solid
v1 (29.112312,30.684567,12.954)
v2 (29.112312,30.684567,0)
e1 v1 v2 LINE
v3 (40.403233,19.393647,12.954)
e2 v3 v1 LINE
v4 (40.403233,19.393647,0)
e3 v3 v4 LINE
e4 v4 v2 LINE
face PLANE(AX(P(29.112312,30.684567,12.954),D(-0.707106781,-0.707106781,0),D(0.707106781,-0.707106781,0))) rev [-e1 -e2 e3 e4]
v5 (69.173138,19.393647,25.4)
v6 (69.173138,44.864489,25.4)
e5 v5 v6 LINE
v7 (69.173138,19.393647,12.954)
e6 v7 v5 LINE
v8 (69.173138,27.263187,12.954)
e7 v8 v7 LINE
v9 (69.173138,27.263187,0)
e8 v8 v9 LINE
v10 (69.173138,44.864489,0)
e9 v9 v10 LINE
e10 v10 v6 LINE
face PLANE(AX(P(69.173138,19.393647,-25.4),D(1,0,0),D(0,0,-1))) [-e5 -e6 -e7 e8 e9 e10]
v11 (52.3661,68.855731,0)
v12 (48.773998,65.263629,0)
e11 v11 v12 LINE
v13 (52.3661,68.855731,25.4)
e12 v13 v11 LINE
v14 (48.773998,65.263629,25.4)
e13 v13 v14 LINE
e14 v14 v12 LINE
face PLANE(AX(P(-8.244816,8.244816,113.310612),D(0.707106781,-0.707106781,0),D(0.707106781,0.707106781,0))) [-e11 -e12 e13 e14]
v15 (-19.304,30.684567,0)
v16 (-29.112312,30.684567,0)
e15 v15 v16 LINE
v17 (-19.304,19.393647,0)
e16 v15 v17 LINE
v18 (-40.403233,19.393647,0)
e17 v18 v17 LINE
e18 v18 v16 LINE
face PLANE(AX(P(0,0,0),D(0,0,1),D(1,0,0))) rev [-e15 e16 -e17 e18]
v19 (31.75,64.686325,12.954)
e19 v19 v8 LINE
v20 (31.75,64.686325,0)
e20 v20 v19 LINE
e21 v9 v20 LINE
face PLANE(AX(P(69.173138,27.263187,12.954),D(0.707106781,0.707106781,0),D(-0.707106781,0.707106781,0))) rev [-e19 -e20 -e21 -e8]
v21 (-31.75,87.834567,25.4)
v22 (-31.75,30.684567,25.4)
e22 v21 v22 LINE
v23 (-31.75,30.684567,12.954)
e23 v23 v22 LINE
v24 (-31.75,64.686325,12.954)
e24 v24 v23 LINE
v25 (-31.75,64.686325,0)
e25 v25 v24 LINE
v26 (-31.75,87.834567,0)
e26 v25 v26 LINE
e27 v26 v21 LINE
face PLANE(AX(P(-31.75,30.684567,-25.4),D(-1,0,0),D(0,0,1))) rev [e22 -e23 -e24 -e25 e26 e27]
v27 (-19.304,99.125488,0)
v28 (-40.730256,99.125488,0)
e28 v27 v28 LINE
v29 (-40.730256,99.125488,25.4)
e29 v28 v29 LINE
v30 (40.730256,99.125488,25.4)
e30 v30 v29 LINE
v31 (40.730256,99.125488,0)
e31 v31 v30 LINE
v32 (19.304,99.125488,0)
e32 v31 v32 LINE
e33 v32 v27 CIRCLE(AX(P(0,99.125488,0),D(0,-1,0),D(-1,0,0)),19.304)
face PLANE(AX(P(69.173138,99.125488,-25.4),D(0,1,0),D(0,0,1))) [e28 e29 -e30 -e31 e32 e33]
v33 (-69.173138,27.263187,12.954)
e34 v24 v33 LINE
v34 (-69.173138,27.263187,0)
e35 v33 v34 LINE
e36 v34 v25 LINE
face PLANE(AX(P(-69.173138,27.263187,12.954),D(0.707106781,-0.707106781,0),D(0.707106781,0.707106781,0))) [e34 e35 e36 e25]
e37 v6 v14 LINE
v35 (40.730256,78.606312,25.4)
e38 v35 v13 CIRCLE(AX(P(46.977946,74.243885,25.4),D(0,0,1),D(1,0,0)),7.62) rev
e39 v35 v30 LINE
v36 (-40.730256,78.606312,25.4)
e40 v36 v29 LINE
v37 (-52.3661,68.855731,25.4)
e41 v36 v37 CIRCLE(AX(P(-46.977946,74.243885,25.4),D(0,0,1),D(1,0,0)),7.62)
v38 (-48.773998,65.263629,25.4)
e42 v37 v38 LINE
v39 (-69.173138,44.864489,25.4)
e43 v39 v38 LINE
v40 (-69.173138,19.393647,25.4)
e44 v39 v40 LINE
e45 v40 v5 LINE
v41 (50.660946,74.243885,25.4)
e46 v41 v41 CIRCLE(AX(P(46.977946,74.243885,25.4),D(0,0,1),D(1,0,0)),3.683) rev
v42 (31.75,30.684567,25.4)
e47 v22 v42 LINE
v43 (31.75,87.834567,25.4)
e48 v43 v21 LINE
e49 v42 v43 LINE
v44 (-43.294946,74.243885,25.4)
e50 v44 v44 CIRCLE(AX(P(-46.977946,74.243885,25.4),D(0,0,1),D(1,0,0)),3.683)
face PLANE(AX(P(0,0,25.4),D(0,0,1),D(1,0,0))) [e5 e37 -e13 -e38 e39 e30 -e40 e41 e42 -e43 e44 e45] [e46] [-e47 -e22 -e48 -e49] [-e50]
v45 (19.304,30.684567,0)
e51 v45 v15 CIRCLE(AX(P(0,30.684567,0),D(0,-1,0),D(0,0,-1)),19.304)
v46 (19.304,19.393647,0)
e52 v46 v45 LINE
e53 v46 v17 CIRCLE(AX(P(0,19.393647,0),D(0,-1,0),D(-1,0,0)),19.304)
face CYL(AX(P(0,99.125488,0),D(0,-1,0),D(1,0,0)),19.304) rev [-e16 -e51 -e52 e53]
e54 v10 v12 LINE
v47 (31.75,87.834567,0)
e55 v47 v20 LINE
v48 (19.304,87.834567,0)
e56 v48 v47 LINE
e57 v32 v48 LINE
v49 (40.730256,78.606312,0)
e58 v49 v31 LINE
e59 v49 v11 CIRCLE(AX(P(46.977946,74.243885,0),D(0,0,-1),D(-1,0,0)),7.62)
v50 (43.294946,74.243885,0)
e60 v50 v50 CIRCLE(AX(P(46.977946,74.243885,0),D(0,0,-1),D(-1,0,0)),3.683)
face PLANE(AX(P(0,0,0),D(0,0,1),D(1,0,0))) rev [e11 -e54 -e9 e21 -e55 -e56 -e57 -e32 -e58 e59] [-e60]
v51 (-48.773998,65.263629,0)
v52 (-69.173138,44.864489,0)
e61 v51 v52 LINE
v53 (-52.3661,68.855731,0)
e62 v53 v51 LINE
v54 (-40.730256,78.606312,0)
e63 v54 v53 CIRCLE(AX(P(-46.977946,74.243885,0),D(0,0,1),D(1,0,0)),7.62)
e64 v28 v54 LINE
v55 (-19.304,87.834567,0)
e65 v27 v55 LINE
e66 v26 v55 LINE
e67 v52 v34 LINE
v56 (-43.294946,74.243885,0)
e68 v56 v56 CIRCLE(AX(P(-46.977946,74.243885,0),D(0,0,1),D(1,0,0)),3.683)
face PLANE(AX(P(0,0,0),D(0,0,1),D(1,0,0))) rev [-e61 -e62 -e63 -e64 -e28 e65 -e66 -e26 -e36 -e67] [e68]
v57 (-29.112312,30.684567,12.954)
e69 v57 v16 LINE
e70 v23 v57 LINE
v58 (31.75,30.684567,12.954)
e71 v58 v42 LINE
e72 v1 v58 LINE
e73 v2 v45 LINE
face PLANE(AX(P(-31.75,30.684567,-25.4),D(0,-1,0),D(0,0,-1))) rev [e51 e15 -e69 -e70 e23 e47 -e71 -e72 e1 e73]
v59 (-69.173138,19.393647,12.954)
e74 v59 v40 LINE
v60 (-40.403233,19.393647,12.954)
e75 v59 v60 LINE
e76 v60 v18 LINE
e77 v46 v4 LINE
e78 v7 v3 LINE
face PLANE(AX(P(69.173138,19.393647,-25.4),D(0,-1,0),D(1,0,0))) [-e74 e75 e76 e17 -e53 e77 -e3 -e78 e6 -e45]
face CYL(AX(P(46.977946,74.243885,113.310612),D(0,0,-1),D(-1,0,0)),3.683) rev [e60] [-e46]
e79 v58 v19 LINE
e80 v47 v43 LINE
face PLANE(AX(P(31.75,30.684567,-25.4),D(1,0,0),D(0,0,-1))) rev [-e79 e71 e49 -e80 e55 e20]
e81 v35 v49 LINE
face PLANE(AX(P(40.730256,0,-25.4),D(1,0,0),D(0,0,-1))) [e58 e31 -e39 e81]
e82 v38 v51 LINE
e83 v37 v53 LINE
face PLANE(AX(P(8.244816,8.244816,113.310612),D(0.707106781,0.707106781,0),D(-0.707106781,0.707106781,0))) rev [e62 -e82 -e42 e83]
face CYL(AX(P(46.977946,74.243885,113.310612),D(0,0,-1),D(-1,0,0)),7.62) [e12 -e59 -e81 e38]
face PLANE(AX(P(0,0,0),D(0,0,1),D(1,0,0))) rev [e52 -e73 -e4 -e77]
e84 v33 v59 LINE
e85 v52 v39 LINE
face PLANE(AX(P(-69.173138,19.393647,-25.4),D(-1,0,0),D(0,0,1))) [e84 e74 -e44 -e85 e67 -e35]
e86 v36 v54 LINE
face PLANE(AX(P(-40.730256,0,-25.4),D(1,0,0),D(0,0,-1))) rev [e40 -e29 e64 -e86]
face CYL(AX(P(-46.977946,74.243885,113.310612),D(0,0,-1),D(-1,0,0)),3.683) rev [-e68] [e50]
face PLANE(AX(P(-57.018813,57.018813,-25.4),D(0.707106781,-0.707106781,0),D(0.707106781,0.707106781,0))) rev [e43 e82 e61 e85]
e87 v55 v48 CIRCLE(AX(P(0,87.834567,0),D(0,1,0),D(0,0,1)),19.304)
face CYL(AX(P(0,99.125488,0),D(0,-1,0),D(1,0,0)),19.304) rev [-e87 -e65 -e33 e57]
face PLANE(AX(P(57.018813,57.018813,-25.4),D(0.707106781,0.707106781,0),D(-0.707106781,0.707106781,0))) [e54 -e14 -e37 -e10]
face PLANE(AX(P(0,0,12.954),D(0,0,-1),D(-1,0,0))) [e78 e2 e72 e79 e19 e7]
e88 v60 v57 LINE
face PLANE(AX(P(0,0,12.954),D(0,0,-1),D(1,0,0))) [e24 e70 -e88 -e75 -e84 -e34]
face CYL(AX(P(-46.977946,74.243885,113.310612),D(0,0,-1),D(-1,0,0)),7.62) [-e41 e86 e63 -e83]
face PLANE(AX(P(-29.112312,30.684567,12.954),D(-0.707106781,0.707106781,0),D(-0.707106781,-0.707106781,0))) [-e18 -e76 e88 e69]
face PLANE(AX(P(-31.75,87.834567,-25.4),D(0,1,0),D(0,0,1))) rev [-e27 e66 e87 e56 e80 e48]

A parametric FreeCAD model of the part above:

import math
import FreeCAD as App
import Part
import Sketcher
from FreeCAD import Vector
Q = App.Units.Quantity


def add_polygon(sketch, points):
    """Adds a closed chain of lines whose ends are joined by coincident constraints."""
    first, n = sketch.GeometryCount, len(points)
    for a, b in zip(points, points[1:] + points[:1]):
        sketch.addGeometry(Part.LineSegment(App.Vector(*a, 0), App.Vector(*b, 0)), False)
    for i in range(n):
        sketch.addConstraint(Sketcher.Constraint("Coincident", first + i, 2, first + (i + 1) % n, 1))

doc = App.newDocument("Part")
body = doc.addObject("PartDesign::Body", "Body")

sketch1 = body.newObject("Sketcher::SketchObject", "Sketch")
sketch1.AttachmentSupport = (doc.getObject("XZ_Plane"), [""])
sketch1.MapMode = "FlatFace"
sketch1.addGeometry(Part.Circle(Vector(0, 0, 0), Vector(0, 0, 1), 19), False)
sketch1.addConstraint([
    Sketcher.Constraint("Coincident", 0, 3, -1, 1),
    Sketcher.Constraint("Diameter", 0, Q("1.5 in")),
])
pad1 = body.newObject("PartDesign::Pad", "Pad")
pad1.Profile = sketch1
pad1.Length = Q("6 in")
pad1.Reversed = True

sketch2 = body.newObject("Sketcher::SketchObject", "Sketch001")
sketch2.AttachmentSupport = (doc.getObject("XY_Plane"), [""])
sketch2.MapMode = "FlatFace"
add_polygon(sketch2, [(-6, 90), (-428, -332), (-392, -332), (12, 72)])
sketch2.addConstraint([
    Sketcher.Constraint("Horizontal", 1),
    Sketcher.Constraint("Parallel", 0, 2),
    Sketcher.Constraint("Perpendicular", 2, 3),
    Sketcher.Constraint("Distance", 3, Q("1 in")),
    Sketcher.Constraint("Angle", 0, Q("-135 deg")),
    Sketcher.Constraint("DistanceY", 0, 2, -1, 1, Q("13.058 in")),
    Sketcher.Constraint("Distance", 0, Q("596.404461 mm")),
    Sketcher.Constraint("DistanceX", 1, 2, -1, 1, Q("391.82929 mm")),
])
pad2 = body.newObject("PartDesign::Pad", "Pad001")
pad2.Profile = sketch2
pad2.Length = Q("1 in")
pad2.Midplane = True
doc.recompute()

mirrored = body.newObject("PartDesign::Mirrored", "Mirrored")
mirrored.Originals = [pad2]
mirrored.MirrorPlane = (doc.getObject("YZ_Plane"), [""])
body.Tip = mirrored
body2 = doc.addObject("PartDesign::Body", "Body001")

sketch3 = body2.newObject("Sketcher::SketchObject", "Sketch002")
sketch3.AttachmentSupport = (doc.getObject("XY_Plane001"), [""])
sketch3.MapMode = "FlatFace"
sketch3.AttachmentOffset = App.Placement(Vector(0, 0, 1 * 25.4), App.Rotation())
add_polygon(sketch3, [(-69, 99), (-69, 19), (69, 19), (69, 99)])
sketch3.addConstraint([
    Sketcher.Constraint("Vertical", 0),
    Sketcher.Constraint("Horizontal", 1),
    Sketcher.Constraint("Vertical", 2),
    Sketcher.Constraint("Horizontal", 3),
    Sketcher.Constraint("DistanceY", 0, 2, 0, 1, Q("79.731841 mm")),
    Sketcher.Constraint("DistanceX", 1, 1, 1, 2, Q("138.346276 mm")),
    Sketcher.Constraint("DistanceX", 0, 2, -1, 1, Q("69.173138 mm")),
    Sketcher.Constraint("DistanceY", -1, 1, 0, 2, Q("19.393647 mm")),
])
pad3 = body2.newObject("PartDesign::Pad", "Pad002")
pad3.Profile = sketch3
pad3.Length = Q("2 in")
pad3.Reversed = True
doc.recompute()

boolean = body2.newObject("PartDesign::Boolean", "Boolean")
boolean.Type = "Cut"
boolean.addObjects([body])

sketch4 = body2.newObject("Sketcher::SketchObject", "Sketch003")
sketch4.AttachmentSupport = (doc.getObject("XY_Plane001"), [""])
sketch4.MapMode = "FlatFace"
sketch4.AttachmentOffset = App.Placement(Vector(0, 0, 1 * 25.4), App.Rotation())
add_polygon(sketch4, [(-32, 88), (-32, 31), (32, 31), (32, 88)])
sketch4.addConstraint([
    Sketcher.Constraint("Vertical", 0),
    Sketcher.Constraint("Horizontal", 1),
    Sketcher.Constraint("Vertical", 2),
    Sketcher.Constraint("Horizontal", 3),
    Sketcher.Constraint("DistanceX", 1, 1, 1, 2, Q("2.5 in")),
    Sketcher.Constraint("DistanceY", 0, 2, 0, 1, Q("2.25 in")),
    Sketcher.Constraint("DistanceX", 0, 2, -1, 1, Q("1.25 in")),
    Sketcher.Constraint("DistanceY", -1, 1, 0, 2, Q("30.684567 mm")),
])
pocket1 = body2.newObject("PartDesign::Pocket", "Pocket")
pocket1.Profile = sketch4
pocket1.Type = "ThroughAll"

sketch5 = body2.newObject("Sketcher::SketchObject", "Sketch004")
sketch5.AttachmentSupport = (doc.getObject("XY_Plane001"), [""])
sketch5.MapMode = "FlatFace"
sketch5.AttachmentOffset = App.Placement(Vector(0, 0, 1 * 25.4), App.Rotation())
add_polygon(sketch5, [(-69, 99), (-69, 45), (-41, 73), (-41, 99)])
sketch5.addConstraint([
    Sketcher.Constraint("Vertical", 0),
    Sketcher.Constraint("Vertical", 2),
    Sketcher.Constraint("Horizontal", 3),
    Sketcher.Constraint("Angle", 1, Q("45 deg")),
    Sketcher.Constraint("DistanceY", 0, 2, 0, 1, Q("54.260999 mm")),
    Sketcher.Constraint("DistanceX", 3, 2, 3, 1, Q("28.442882 mm")),
    Sketcher.Constraint("DistanceY", -1, 1, 0, 2, Q("44.864489 mm")),
    Sketcher.Constraint("DistanceX", 0, 2, -1, 1, Q("69.173138 mm")),
])
pocket2 = body2.newObject("PartDesign::Pocket", "Pocket001")
pocket2.Profile = sketch5
pocket2.Type = "ThroughAll"
doc.recompute()

mirrored2 = body2.newObject("PartDesign::Mirrored", "Mirrored001")
mirrored2.Originals = [pocket2]
mirrored2.MirrorPlane = (doc.getObject("YZ_Plane001"), [""])
body2.Tip = mirrored2

sketch6 = body2.newObject("Sketcher::SketchObject", "Sketch005")
sketch6.AttachmentSupport = (doc.getObject("XY_Plane001"), [""])
sketch6.MapMode = "FlatFace"
add_polygon(sketch6, [(69, 19), (69, 45), (41, 73), (41, 99), (-41, 99), (-41, 73), (-69, 45), (-69, 19)])
sketch6.addConstraint([
    Sketcher.Constraint("Vertical", 0),
    Sketcher.Constraint("Vertical", 2),
    Sketcher.Constraint("Horizontal", 3),
    Sketcher.Constraint("Vertical", 4),
    Sketcher.Constraint("Vertical", 6),
    Sketcher.Constraint("Horizontal", 7),
    Sketcher.Constraint("Symmetric", 1, 2, 4, 2, -2),
    Sketcher.Constraint("Symmetric", 0, 2, 5, 2, -2),
    Sketcher.Constraint("Perpendicular", 1, 5),
    Sketcher.Constraint("DistanceY", 0, 1, 0, 2, Q("25.470842 mm")),
    Sketcher.Constraint("DistanceY", 0, 2, 2, 2, Q("54.260999 mm")),
    Sketcher.Constraint("Distance", 1, Q("40.224309 mm")),
    Sketcher.Constraint("DistanceX", 3, 2, 3, 1, Q("81.460512 mm")),
    Sketcher.Constraint("DistanceY", -1, 1, 0, 2, Q("44.864489 mm")),
])
pocket3 = body2.newObject("PartDesign::Pocket", "Pocket002")
pocket3.Profile = sketch6
pocket3.Type = "ThroughAll"

sketch7 = body2.newObject("Sketcher::SketchObject", "Sketch006")
sketch7.AttachmentSupport = (doc.getObject("XY_Plane001"), [""])
sketch7.MapMode = "FlatFace"
sketch7.addGeometry([
    Part.LineSegment(Vector(48.8, 65.3, 0), Vector(39.4, 74.7, 0)),
    Part.ArcOfCircle(Part.Circle(Vector(47, 74.2, 0), Vector(0, 0, 1), 7.6), math.radians(-45), math.radians(177)),
    Part.LineSegment(Vector(52.4, 68.9, 0), Vector(48.8, 65.3, 0)),
    Part.Circle(Vector(47, 74.2, 0), Vector(0, 0, 1), 3.7),
], False)
sketch7.addConstraint([
    Sketcher.Constraint("Coincident", 0, 2, 1, 2),
    Sketcher.Constraint("Tangent", 1, 1, 2, 1),
    Sketcher.Constraint("Coincident", 2, 2, 0, 1),
    Sketcher.Constraint("Coincident", 3, 3, 1, 3),
    Sketcher.Constraint("Perpendicular", 0, 2),
    Sketcher.Constraint("Radius", 1, Q("0.3 in")),
    Sketcher.Constraint("Diameter", 3, Q("0.29 in")),
    Sketcher.Constraint("Angle", 0, Q("135 deg")),
    Sketcher.Constraint("Distance", 2, Q("0.2 in")),
    Sketcher.Constraint("DistanceX", -1, 1, 1, 1, Q("52.3661 mm")),
    Sketcher.Constraint("DistanceY", -1, 1, 1, 1, Q("68.855731 mm")),
])
pad4 = body2.newObject("PartDesign::Pad", "Pad003")
pad4.Profile = sketch7
pad4.Length = Q("1 in")
doc.recompute()

mirrored3 = body2.newObject("PartDesign::Mirrored", "Mirrored002")
mirrored3.Originals = [pad4]
mirrored3.MirrorPlane = (doc.getObject("YZ_Plane001"), [""])
body2.Tip = mirrored3

sketch8 = body2.newObject("Sketcher::SketchObject", "Sketch007")
sketch8.AttachmentSupport = (doc.getObject("XZ_Plane001"), [""])
sketch8.MapMode = "FlatFace"
sketch8.AttachmentOffset = App.Placement(Vector(0, 0, -19.393647), App.Rotation())
sketch8.addGeometry([
    Part.LineSegment(Vector(-19.3, 0, 0), Vector(-19.05, 0, 0)),
    Part.ArcOfCircle(Part.Circle(Vector(0, 0, 0), Vector(0, 0, 1), 19.05), math.radians(0), math.radians(180)),
    Part.LineSegment(Vector(19.05, 0, 0), Vector(19.3, 0, 0)),
    Part.ArcOfCircle(Part.Circle(Vector(0, 0, 0), Vector(0, 0, 1), 19.3), math.radians(0), math.radians(180)),
], False)
sketch8.addConstraint([
    Sketcher.Constraint("Coincident", 0, 2, 1, 2),
    Sketcher.Constraint("Coincident", 1, 1, 2, 1),
    Sketcher.Constraint("Coincident", 2, 2, 3, 1),
    Sketcher.Constraint("Coincident", 3, 2, 0, 1),
    Sketcher.Constraint("Horizontal", 0),
    Sketcher.Constraint("Horizontal", 2),
    Sketcher.Constraint("Coincident", 1, 3, -1, 1),
    Sketcher.Constraint("Coincident", 3, 3, -1, 1),
    Sketcher.Constraint("PointOnObject", 0, 2, -1),
    Sketcher.Constraint("PointOnObject", 1, 1, -1),
    Sketcher.Constraint("Radius", 1, Q("0.75 in")),
    Sketcher.Constraint("Radius", 3, Q("0.76 in")),
])
pocket4 = body2.newObject("PartDesign::Pocket", "Pocket003")
pocket4.Profile = sketch8
pocket4.Type = "ThroughAll"

sketch9 = body2.newObject("Sketcher::SketchObject", "Sketch008")
sketch9.AttachmentSupport = (doc.getObject("XY_Plane001"), [""])
sketch9.MapMode = "FlatFace"
add_polygon(sketch9, [(29, 67), (69, 27), (69, 19), (40, 19), (29, 31)])
sketch9.addConstraint([
    Sketcher.Constraint("Vertical", 1),
    Sketcher.Constraint("Horizontal", 2),
    Sketcher.Constraint("Vertical", 4),
    Sketcher.Constraint("Parallel", 0, 3),
    Sketcher.Constraint("Angle", 0, Q("-45 deg")),
    Sketcher.Constraint("DistanceY", 0, 2, 3, 2, Q("0.1347 in")),
    Sketcher.Constraint("DistanceY", 1, 2, 1, 1, Q("7.86954 mm")),
    Sketcher.Constraint("DistanceX", 2, 2, 2, 1, Q("28.769905 mm")),
    Sketcher.Constraint("DistanceX", -1, 1, 0, 2, Q("69.173138 mm")),
    Sketcher.Constraint("DistanceY", -1, 1, 0, 2, Q("27.263187 mm")),
])
pocket5 = body2.newObject("PartDesign::Pocket", "Pocket004")
pocket5.Profile = sketch9
pocket5.Length = Q("0.51 in")
pocket5.Reversed = True
doc.recompute()

mirrored4 = body2.newObject("PartDesign::Mirrored", "Mirrored003")
mirrored4.Originals = [pocket5]
mirrored4.MirrorPlane = (doc.getObject("YZ_Plane001"), [""])
body2.Tip = mirrored4

doc.recompute()
